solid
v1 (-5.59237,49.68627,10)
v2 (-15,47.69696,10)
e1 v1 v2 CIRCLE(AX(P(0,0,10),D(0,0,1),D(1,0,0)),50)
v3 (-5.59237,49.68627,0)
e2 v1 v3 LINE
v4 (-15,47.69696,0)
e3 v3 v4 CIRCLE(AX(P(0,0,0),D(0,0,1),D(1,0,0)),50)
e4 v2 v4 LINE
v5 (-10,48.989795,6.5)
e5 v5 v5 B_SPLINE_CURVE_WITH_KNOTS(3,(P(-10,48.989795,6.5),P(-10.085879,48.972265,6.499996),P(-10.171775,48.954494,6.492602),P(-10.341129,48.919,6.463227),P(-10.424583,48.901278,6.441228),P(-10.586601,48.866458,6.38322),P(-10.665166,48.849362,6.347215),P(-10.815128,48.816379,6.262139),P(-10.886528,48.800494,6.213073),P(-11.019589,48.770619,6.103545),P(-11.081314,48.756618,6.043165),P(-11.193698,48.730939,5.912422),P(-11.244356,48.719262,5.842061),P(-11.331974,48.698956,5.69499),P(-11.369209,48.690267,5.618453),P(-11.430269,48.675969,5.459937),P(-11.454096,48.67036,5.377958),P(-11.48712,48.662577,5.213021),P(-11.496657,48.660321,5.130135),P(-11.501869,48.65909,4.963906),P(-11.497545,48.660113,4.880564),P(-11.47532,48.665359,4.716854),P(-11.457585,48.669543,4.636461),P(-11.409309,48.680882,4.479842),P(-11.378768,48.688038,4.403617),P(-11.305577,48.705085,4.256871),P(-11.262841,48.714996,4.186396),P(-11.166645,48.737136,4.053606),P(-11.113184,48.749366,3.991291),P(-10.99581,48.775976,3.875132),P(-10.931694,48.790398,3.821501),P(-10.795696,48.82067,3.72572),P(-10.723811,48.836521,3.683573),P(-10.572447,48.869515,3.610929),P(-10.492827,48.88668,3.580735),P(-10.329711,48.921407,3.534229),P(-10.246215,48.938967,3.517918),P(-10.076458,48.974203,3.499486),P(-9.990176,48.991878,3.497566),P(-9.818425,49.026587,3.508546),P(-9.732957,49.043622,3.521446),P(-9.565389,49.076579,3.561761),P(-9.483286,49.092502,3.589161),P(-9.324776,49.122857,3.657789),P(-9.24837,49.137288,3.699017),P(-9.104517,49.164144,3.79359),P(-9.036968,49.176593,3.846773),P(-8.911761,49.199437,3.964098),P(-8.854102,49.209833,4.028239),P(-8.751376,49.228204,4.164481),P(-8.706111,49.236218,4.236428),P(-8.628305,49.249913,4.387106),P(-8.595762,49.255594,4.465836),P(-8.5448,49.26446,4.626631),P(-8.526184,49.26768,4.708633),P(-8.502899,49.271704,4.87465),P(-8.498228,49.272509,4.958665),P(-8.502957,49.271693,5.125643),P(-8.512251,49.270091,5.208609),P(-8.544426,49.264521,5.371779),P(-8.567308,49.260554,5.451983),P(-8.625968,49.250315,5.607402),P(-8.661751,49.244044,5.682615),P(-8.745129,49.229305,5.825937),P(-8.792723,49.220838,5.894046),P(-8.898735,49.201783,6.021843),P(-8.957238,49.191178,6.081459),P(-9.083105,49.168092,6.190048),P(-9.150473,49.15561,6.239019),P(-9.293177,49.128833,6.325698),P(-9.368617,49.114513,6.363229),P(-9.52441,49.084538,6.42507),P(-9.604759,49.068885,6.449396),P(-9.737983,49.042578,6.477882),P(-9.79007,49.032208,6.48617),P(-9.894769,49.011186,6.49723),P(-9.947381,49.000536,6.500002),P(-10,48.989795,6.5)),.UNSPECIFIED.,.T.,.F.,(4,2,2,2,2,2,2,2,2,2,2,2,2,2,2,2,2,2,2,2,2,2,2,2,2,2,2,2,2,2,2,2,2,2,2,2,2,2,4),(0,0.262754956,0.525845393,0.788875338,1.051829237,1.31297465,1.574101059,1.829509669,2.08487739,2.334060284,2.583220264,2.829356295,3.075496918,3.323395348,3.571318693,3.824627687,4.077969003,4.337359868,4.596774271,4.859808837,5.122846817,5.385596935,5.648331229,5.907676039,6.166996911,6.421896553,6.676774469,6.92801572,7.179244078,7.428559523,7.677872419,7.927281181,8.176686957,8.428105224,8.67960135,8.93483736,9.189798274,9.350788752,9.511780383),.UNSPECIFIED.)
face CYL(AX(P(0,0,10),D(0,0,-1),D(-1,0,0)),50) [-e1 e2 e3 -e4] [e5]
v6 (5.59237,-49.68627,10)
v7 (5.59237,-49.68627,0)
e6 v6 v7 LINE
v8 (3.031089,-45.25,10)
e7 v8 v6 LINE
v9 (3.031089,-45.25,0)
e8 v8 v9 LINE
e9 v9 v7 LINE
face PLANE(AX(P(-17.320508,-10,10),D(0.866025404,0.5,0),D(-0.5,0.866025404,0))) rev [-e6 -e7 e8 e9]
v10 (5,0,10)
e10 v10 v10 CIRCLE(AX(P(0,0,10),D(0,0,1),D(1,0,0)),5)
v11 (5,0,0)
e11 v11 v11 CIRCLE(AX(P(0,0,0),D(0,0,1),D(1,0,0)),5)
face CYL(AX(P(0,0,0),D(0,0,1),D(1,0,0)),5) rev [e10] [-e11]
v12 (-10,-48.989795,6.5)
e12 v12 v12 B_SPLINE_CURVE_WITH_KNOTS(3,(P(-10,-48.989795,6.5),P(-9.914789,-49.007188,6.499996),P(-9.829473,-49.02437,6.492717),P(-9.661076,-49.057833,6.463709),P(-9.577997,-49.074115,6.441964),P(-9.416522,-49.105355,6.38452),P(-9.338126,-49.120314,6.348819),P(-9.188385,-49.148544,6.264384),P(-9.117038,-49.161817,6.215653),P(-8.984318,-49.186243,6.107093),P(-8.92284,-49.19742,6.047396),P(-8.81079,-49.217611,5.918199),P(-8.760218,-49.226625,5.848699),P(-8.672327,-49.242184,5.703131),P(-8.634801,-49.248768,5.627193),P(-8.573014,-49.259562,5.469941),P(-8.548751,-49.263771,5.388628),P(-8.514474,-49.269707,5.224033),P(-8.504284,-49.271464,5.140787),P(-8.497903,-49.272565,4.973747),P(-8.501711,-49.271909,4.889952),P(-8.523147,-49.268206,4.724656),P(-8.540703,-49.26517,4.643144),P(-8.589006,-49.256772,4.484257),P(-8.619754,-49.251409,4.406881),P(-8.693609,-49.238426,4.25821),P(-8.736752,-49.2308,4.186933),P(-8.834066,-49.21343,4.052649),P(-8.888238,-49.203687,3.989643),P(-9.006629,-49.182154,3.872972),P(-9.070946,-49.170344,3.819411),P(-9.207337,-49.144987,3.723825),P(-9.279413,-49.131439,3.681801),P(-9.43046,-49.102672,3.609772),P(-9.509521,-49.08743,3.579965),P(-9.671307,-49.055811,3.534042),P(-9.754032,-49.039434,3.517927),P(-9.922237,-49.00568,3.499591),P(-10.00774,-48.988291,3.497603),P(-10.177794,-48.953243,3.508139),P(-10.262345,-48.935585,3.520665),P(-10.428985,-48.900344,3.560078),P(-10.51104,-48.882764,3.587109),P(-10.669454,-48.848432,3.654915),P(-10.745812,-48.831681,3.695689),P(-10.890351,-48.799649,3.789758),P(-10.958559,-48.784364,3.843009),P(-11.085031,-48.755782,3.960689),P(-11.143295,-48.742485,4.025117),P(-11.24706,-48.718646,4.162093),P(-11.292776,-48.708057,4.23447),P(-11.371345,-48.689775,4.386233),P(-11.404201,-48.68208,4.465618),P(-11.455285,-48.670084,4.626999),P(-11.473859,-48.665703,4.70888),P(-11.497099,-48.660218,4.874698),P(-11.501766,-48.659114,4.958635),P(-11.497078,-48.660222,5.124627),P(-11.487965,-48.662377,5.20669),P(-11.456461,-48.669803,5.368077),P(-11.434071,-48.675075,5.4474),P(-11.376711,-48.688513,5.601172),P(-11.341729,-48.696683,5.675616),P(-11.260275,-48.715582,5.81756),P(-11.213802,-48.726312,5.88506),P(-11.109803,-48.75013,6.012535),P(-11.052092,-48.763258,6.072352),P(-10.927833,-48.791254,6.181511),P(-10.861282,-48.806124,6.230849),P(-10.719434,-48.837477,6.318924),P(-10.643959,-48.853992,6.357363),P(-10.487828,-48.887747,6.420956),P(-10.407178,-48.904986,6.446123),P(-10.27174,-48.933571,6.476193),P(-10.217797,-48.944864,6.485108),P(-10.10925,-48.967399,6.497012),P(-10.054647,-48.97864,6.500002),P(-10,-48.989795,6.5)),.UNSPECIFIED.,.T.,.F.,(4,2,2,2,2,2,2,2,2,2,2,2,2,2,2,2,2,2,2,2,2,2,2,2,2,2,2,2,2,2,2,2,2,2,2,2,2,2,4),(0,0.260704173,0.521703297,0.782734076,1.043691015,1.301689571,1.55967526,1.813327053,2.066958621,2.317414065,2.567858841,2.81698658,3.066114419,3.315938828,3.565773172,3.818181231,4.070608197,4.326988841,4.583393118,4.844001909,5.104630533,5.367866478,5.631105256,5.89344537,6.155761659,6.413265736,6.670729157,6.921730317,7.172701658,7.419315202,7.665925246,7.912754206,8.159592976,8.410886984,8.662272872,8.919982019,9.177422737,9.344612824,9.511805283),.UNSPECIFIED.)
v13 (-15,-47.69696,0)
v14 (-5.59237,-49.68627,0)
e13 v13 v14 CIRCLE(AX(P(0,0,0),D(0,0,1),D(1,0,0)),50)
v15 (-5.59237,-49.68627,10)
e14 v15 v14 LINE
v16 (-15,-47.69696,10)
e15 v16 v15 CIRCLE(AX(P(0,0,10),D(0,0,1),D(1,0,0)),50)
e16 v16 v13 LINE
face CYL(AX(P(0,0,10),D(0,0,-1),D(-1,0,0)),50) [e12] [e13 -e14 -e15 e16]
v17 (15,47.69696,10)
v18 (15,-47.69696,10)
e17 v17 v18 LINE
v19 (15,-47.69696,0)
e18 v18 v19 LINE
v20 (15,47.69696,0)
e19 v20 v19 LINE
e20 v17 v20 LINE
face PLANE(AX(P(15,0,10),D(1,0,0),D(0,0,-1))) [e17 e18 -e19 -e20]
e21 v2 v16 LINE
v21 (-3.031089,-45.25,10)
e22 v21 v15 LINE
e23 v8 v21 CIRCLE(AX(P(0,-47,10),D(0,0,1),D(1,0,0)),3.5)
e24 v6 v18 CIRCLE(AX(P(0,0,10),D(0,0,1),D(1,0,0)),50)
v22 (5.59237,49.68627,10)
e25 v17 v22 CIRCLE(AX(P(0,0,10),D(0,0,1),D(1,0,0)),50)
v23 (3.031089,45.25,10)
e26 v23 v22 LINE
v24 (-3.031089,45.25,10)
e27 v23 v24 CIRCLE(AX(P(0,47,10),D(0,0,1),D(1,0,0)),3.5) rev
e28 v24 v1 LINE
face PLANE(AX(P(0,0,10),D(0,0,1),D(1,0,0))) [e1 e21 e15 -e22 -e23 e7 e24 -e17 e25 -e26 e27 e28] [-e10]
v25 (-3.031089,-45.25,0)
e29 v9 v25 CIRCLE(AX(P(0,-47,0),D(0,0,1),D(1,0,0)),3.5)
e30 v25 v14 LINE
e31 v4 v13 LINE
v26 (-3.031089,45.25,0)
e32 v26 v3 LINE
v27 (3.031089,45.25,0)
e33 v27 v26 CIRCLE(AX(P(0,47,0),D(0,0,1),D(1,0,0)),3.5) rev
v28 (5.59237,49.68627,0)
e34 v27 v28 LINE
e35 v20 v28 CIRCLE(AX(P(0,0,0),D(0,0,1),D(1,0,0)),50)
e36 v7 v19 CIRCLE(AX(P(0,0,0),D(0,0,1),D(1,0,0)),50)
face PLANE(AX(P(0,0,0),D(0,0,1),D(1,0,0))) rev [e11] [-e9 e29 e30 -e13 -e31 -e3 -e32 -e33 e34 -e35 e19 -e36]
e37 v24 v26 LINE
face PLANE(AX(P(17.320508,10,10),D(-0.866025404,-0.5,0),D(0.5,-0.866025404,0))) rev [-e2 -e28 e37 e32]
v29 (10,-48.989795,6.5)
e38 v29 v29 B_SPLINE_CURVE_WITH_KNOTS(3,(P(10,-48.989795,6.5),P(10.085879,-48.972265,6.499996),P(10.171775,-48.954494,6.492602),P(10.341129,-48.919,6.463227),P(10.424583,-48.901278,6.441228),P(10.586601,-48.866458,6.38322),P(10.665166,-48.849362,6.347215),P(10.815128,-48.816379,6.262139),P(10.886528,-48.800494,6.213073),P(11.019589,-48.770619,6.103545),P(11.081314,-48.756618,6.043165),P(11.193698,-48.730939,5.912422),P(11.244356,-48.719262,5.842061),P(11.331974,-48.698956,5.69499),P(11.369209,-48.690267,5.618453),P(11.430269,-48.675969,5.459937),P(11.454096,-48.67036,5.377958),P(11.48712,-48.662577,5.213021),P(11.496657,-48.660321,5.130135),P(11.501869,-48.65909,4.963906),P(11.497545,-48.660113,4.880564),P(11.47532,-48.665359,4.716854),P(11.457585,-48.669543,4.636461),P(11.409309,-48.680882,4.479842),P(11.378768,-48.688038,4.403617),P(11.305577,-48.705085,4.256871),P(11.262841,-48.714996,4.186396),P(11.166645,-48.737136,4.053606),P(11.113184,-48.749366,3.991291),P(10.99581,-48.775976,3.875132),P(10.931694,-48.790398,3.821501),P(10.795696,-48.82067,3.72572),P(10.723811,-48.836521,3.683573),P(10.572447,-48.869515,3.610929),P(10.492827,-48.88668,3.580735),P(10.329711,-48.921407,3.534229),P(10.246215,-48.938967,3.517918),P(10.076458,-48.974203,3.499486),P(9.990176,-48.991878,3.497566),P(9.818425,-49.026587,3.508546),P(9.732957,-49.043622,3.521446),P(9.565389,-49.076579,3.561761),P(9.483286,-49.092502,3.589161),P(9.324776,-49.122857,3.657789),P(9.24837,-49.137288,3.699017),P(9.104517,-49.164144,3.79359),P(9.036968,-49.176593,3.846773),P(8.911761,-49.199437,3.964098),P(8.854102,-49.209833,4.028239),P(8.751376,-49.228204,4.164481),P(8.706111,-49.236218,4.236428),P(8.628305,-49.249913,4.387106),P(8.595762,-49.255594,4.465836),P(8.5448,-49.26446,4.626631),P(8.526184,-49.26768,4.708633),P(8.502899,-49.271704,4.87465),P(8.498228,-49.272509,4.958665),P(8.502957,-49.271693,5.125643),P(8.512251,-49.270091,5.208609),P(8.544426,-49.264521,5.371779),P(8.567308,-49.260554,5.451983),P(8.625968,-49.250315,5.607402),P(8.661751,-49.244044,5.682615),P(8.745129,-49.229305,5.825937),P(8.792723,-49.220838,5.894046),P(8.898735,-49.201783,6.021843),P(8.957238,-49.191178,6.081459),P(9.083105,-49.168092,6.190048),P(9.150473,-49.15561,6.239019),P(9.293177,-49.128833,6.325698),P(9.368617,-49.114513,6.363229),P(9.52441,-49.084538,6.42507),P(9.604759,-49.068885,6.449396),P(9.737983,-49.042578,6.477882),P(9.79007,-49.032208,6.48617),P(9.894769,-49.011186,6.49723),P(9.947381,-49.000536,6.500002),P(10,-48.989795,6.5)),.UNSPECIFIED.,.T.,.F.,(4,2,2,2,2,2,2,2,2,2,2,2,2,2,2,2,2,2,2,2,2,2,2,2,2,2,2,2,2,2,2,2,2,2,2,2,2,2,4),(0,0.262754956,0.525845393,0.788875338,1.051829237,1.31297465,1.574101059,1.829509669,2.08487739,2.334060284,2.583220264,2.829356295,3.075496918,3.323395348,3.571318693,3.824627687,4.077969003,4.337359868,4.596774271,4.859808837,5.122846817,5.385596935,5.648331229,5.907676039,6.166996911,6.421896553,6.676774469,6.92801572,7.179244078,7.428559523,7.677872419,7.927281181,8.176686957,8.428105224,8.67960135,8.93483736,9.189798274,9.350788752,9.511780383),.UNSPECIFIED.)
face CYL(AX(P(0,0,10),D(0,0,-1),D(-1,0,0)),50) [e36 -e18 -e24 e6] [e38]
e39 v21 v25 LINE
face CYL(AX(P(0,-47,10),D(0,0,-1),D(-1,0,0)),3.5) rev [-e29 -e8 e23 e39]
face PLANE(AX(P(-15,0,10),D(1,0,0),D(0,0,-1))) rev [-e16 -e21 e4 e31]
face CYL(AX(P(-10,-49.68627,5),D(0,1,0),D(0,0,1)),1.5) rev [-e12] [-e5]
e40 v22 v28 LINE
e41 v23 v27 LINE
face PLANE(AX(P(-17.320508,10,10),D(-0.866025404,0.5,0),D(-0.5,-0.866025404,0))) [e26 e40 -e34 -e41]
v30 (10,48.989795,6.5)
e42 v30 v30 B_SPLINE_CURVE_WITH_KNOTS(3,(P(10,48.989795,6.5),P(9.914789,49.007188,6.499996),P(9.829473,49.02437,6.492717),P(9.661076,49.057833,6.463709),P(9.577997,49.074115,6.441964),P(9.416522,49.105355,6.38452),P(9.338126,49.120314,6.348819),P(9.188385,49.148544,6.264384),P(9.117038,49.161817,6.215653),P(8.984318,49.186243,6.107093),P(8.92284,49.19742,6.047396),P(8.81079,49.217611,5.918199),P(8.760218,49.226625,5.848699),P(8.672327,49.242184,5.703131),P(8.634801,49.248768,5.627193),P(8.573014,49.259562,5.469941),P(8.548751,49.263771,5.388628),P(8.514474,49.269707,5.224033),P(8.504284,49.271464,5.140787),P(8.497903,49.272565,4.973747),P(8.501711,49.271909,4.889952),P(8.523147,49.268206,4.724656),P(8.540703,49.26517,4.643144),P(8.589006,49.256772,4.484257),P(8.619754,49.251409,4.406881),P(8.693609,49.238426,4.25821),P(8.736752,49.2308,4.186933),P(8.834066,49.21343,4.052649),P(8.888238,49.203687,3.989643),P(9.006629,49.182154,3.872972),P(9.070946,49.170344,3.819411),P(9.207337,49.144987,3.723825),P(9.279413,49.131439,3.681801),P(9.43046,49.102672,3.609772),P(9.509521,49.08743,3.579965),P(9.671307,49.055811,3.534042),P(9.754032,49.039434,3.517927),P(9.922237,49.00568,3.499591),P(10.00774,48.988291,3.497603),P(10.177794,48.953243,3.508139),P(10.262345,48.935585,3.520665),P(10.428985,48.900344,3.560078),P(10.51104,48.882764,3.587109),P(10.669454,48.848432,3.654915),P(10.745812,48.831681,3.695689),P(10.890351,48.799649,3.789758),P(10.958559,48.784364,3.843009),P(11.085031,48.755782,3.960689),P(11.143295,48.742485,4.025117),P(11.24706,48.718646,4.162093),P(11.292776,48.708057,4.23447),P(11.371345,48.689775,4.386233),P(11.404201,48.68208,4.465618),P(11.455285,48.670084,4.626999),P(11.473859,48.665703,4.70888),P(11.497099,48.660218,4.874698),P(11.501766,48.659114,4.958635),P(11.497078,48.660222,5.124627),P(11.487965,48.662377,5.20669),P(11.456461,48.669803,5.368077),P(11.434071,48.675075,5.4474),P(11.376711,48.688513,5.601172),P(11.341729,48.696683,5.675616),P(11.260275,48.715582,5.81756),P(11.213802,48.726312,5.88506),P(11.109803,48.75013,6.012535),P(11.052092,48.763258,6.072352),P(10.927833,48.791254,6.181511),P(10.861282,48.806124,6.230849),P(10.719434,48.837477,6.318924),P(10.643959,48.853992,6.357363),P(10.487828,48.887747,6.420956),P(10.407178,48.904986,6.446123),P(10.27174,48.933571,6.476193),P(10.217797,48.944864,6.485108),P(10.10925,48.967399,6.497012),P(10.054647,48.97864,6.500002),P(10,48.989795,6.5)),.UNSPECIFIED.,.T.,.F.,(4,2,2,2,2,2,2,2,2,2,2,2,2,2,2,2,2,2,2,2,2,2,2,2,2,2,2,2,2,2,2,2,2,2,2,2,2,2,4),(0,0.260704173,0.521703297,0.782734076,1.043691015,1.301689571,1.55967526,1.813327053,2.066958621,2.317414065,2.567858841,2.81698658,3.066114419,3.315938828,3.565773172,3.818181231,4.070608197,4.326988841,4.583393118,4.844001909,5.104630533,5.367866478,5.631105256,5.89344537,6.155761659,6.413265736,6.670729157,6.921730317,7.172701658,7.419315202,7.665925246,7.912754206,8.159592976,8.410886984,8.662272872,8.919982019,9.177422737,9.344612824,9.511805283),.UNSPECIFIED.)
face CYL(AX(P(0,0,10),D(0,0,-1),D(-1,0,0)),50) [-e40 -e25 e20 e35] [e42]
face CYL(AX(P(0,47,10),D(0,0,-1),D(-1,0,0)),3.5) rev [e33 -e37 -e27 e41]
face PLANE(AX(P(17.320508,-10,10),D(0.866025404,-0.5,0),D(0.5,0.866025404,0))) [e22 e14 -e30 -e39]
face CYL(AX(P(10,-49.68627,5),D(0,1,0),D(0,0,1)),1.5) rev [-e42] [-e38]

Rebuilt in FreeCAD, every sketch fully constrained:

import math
import FreeCAD as App
import Part
import Sketcher

V = App.Vector
Q = App.Units.Quantity

doc = App.newDocument("Part")
params = doc.addObject("Spreadsheet::Sheet", "Params")
for row, (alias, value) in enumerate([
    ("sketch1_radius", "50 mm"),
    ("sketch1_radius2", "3.5 mm"),
    ("pad1_length", "10 mm"),
    ("sketch2_diameter", "3 mm"),
    ("sketch3_diameter", "10 mm"),
], start=1):
    params.set(f"A{row}", alias)
    params.set(f"B{row}", "=" + value)
    params.setAlias(f"B{row}", alias)

body = doc.addObject("PartDesign::Body", "Body")

# Sketch on XY plane
sketch1 = doc.addObject("Sketcher::SketchObject", "Sketch")
body.addObject(sketch1)
sketch1.AttachmentSupport = (doc.XY_Plane, [""])
sketch1.MapMode = "FlatFace"
sketch1.addGeometry([
    Part.ArcOfCircle(Part.Circle(V(0, 0, 0), V(0, 0, 1), 50), math.radians(96.42), math.radians(107.46)),  # 0
    Part.LineSegment(V(-15, 47.7, 0), V(-15, -47.7, 0)),  # 1
    Part.ArcOfCircle(Part.Circle(V(0, 0, 0), V(0, 0, 1), 50), math.radians(-107.46), math.radians(-96.42)),  # 2
    Part.LineSegment(V(-5.6, -49.7, 0), V(-3, -45.2, 0)),  # 3
    Part.ArcOfCircle(Part.Circle(V(0, -47, 0), V(0, 0, 1), 3.5), math.radians(30), math.radians(150)),  # 4
    Part.LineSegment(V(3, -45.2, 0), V(5.6, -49.7, 0)),  # 5
    Part.ArcOfCircle(Part.Circle(V(0, 0, 0), V(0, 0, 1), 50), math.radians(-83.58), math.radians(-72.54)),  # 6
    Part.LineSegment(V(15, -47.7, 0), V(15, 47.7, 0)),  # 7
    Part.ArcOfCircle(Part.Circle(V(0, 0, 0), V(0, 0, 1), 50), math.radians(72.54), math.radians(83.58)),  # 8
    Part.LineSegment(V(5.6, 49.7, 0), V(3, 45.2, 0)),  # 9
    Part.ArcOfCircle(Part.Circle(V(0, 47, 0), V(0, 0, 1), 3.5), math.radians(-150), math.radians(-30)),  # 10
    Part.LineSegment(V(-3, 45.2, 0), V(-5.6, 49.7, 0)),  # 11
], False)
sketch1.addConstraint([
    Sketcher.Constraint("Coincident", 0, 2, 1, 1),
    Sketcher.Constraint("Coincident", 1, 2, 2, 1),
    Sketcher.Constraint("Coincident", 2, 2, 3, 1),
    Sketcher.Constraint("Tangent", 3, 2, 4, 2),
    Sketcher.Constraint("Tangent", 4, 1, 5, 1),
    Sketcher.Constraint("Coincident", 5, 2, 6, 1),
    Sketcher.Constraint("Coincident", 6, 2, 7, 1),
    Sketcher.Constraint("Coincident", 7, 2, 8, 1),
    Sketcher.Constraint("Coincident", 8, 2, 9, 1),
    Sketcher.Constraint("Tangent", 9, 2, 10, 2),
    Sketcher.Constraint("Tangent", 10, 1, 11, 1),
    Sketcher.Constraint("Coincident", 11, 2, 0, 1),
    Sketcher.Constraint("Vertical", 1),
    Sketcher.Constraint("Vertical", 7),
    Sketcher.Constraint("Coincident", 0, 3, -1, 1),
    Sketcher.Constraint("Coincident", 2, 3, -1, 1),
    Sketcher.Constraint("Coincident", 6, 3, -1, 1),
    Sketcher.Constraint("Coincident", 8, 3, -1, 1),
    Sketcher.Constraint("Equal", 0, 2),
    Sketcher.Constraint("Equal", 2, 6),
    Sketcher.Constraint("Equal", 6, 8),
    Sketcher.Constraint("Equal", 4, 10),
    Sketcher.Constraint("Symmetric", 4, 3, 10, 3, -1, 1),
    Sketcher.Constraint("Symmetric", 3, 2, 4, 1, -2),
    Sketcher.Constraint("Parallel", 3, 9),
    Sketcher.Constraint("Parallel", 5, 11),
    Sketcher.Constraint("Horizontal", 1, 2, 6, 2),
    Sketcher.Constraint("Radius", 0, Q("50 mm")),
    Sketcher.Constraint("Radius", 4, Q("3.5 mm")),
    Sketcher.Constraint("Angle", 3, Q("60 deg")),
    Sketcher.Constraint("DistanceY", 4, 3, -1, 1, Q("47 mm")),
    Sketcher.Constraint("DistanceX", 0, 2, -1, 1, Q("15 mm")),
])
sketch1.setExpression("Constraints[27]", "Params.sketch1_radius")
sketch1.setExpression("Constraints[28]", "Params.sketch1_radius2")
pad1 = doc.addObject("PartDesign::Pad", "Pad")
body.addObject(pad1)
pad1.Profile = sketch1
pad1.setExpression("Length", "Params.pad1_length")

# Sketch on XZ plane
sketch2 = doc.addObject("Sketcher::SketchObject", "Sketch001")
body.addObject(sketch2)
sketch2.AttachmentSupport = (doc.XZ_Plane, [""])
sketch2.MapMode = "FlatFace"
sketch2.addGeometry([
    Part.Circle(V(-10, 5, 0), V(0, 0, 1), 1.5),
    Part.Circle(V(10, 5, 0), V(0, 0, 1), 1.5),
], False)
sketch2.addConstraint([
    Sketcher.Constraint("Equal", 0, 1),
    Sketcher.Constraint("Symmetric", 0, 3, 1, 3, -2),
    Sketcher.Constraint("Diameter", 0, Q("3 mm")),
    Sketcher.Constraint("DistanceX", 0, 3, -1, 1, Q("10 mm")),
    Sketcher.Constraint("DistanceY", -1, 1, 0, 3, Q("5 mm")),
])
sketch2.setExpression("Constraints[2]", "Params.sketch2_diameter")
pocket1 = doc.addObject("PartDesign::Pocket", "Pocket")
body.addObject(pocket1)
pocket1.Profile = sketch2
pocket1.Type = "ThroughAll"
pocket1.Midplane = True

# Sketch on XY plane
sketch3 = doc.addObject("Sketcher::SketchObject", "Sketch002")
body.addObject(sketch3)
sketch3.AttachmentSupport = (doc.XY_Plane, [""])
sketch3.MapMode = "FlatFace"
sketch3.AttachmentOffset = App.Placement(V(0, 0, 10), App.Rotation())
sketch3.addGeometry(Part.Circle(V(0, 0, 0), V(0, 0, 1), 5), False)
sketch3.addConstraint([
    Sketcher.Constraint("Coincident", 0, 3, -1, 1),
    Sketcher.Constraint("Diameter", 0, Q("10 mm")),
])
sketch3.setExpression("Constraints[1]", "Params.sketch3_diameter")
pocket2 = doc.addObject("PartDesign::Pocket", "Pocket001")
body.addObject(pocket2)
pocket2.Profile = sketch3
pocket2.Type = "ThroughAll"
pocket2.Midplane = True

doc.recompute()
